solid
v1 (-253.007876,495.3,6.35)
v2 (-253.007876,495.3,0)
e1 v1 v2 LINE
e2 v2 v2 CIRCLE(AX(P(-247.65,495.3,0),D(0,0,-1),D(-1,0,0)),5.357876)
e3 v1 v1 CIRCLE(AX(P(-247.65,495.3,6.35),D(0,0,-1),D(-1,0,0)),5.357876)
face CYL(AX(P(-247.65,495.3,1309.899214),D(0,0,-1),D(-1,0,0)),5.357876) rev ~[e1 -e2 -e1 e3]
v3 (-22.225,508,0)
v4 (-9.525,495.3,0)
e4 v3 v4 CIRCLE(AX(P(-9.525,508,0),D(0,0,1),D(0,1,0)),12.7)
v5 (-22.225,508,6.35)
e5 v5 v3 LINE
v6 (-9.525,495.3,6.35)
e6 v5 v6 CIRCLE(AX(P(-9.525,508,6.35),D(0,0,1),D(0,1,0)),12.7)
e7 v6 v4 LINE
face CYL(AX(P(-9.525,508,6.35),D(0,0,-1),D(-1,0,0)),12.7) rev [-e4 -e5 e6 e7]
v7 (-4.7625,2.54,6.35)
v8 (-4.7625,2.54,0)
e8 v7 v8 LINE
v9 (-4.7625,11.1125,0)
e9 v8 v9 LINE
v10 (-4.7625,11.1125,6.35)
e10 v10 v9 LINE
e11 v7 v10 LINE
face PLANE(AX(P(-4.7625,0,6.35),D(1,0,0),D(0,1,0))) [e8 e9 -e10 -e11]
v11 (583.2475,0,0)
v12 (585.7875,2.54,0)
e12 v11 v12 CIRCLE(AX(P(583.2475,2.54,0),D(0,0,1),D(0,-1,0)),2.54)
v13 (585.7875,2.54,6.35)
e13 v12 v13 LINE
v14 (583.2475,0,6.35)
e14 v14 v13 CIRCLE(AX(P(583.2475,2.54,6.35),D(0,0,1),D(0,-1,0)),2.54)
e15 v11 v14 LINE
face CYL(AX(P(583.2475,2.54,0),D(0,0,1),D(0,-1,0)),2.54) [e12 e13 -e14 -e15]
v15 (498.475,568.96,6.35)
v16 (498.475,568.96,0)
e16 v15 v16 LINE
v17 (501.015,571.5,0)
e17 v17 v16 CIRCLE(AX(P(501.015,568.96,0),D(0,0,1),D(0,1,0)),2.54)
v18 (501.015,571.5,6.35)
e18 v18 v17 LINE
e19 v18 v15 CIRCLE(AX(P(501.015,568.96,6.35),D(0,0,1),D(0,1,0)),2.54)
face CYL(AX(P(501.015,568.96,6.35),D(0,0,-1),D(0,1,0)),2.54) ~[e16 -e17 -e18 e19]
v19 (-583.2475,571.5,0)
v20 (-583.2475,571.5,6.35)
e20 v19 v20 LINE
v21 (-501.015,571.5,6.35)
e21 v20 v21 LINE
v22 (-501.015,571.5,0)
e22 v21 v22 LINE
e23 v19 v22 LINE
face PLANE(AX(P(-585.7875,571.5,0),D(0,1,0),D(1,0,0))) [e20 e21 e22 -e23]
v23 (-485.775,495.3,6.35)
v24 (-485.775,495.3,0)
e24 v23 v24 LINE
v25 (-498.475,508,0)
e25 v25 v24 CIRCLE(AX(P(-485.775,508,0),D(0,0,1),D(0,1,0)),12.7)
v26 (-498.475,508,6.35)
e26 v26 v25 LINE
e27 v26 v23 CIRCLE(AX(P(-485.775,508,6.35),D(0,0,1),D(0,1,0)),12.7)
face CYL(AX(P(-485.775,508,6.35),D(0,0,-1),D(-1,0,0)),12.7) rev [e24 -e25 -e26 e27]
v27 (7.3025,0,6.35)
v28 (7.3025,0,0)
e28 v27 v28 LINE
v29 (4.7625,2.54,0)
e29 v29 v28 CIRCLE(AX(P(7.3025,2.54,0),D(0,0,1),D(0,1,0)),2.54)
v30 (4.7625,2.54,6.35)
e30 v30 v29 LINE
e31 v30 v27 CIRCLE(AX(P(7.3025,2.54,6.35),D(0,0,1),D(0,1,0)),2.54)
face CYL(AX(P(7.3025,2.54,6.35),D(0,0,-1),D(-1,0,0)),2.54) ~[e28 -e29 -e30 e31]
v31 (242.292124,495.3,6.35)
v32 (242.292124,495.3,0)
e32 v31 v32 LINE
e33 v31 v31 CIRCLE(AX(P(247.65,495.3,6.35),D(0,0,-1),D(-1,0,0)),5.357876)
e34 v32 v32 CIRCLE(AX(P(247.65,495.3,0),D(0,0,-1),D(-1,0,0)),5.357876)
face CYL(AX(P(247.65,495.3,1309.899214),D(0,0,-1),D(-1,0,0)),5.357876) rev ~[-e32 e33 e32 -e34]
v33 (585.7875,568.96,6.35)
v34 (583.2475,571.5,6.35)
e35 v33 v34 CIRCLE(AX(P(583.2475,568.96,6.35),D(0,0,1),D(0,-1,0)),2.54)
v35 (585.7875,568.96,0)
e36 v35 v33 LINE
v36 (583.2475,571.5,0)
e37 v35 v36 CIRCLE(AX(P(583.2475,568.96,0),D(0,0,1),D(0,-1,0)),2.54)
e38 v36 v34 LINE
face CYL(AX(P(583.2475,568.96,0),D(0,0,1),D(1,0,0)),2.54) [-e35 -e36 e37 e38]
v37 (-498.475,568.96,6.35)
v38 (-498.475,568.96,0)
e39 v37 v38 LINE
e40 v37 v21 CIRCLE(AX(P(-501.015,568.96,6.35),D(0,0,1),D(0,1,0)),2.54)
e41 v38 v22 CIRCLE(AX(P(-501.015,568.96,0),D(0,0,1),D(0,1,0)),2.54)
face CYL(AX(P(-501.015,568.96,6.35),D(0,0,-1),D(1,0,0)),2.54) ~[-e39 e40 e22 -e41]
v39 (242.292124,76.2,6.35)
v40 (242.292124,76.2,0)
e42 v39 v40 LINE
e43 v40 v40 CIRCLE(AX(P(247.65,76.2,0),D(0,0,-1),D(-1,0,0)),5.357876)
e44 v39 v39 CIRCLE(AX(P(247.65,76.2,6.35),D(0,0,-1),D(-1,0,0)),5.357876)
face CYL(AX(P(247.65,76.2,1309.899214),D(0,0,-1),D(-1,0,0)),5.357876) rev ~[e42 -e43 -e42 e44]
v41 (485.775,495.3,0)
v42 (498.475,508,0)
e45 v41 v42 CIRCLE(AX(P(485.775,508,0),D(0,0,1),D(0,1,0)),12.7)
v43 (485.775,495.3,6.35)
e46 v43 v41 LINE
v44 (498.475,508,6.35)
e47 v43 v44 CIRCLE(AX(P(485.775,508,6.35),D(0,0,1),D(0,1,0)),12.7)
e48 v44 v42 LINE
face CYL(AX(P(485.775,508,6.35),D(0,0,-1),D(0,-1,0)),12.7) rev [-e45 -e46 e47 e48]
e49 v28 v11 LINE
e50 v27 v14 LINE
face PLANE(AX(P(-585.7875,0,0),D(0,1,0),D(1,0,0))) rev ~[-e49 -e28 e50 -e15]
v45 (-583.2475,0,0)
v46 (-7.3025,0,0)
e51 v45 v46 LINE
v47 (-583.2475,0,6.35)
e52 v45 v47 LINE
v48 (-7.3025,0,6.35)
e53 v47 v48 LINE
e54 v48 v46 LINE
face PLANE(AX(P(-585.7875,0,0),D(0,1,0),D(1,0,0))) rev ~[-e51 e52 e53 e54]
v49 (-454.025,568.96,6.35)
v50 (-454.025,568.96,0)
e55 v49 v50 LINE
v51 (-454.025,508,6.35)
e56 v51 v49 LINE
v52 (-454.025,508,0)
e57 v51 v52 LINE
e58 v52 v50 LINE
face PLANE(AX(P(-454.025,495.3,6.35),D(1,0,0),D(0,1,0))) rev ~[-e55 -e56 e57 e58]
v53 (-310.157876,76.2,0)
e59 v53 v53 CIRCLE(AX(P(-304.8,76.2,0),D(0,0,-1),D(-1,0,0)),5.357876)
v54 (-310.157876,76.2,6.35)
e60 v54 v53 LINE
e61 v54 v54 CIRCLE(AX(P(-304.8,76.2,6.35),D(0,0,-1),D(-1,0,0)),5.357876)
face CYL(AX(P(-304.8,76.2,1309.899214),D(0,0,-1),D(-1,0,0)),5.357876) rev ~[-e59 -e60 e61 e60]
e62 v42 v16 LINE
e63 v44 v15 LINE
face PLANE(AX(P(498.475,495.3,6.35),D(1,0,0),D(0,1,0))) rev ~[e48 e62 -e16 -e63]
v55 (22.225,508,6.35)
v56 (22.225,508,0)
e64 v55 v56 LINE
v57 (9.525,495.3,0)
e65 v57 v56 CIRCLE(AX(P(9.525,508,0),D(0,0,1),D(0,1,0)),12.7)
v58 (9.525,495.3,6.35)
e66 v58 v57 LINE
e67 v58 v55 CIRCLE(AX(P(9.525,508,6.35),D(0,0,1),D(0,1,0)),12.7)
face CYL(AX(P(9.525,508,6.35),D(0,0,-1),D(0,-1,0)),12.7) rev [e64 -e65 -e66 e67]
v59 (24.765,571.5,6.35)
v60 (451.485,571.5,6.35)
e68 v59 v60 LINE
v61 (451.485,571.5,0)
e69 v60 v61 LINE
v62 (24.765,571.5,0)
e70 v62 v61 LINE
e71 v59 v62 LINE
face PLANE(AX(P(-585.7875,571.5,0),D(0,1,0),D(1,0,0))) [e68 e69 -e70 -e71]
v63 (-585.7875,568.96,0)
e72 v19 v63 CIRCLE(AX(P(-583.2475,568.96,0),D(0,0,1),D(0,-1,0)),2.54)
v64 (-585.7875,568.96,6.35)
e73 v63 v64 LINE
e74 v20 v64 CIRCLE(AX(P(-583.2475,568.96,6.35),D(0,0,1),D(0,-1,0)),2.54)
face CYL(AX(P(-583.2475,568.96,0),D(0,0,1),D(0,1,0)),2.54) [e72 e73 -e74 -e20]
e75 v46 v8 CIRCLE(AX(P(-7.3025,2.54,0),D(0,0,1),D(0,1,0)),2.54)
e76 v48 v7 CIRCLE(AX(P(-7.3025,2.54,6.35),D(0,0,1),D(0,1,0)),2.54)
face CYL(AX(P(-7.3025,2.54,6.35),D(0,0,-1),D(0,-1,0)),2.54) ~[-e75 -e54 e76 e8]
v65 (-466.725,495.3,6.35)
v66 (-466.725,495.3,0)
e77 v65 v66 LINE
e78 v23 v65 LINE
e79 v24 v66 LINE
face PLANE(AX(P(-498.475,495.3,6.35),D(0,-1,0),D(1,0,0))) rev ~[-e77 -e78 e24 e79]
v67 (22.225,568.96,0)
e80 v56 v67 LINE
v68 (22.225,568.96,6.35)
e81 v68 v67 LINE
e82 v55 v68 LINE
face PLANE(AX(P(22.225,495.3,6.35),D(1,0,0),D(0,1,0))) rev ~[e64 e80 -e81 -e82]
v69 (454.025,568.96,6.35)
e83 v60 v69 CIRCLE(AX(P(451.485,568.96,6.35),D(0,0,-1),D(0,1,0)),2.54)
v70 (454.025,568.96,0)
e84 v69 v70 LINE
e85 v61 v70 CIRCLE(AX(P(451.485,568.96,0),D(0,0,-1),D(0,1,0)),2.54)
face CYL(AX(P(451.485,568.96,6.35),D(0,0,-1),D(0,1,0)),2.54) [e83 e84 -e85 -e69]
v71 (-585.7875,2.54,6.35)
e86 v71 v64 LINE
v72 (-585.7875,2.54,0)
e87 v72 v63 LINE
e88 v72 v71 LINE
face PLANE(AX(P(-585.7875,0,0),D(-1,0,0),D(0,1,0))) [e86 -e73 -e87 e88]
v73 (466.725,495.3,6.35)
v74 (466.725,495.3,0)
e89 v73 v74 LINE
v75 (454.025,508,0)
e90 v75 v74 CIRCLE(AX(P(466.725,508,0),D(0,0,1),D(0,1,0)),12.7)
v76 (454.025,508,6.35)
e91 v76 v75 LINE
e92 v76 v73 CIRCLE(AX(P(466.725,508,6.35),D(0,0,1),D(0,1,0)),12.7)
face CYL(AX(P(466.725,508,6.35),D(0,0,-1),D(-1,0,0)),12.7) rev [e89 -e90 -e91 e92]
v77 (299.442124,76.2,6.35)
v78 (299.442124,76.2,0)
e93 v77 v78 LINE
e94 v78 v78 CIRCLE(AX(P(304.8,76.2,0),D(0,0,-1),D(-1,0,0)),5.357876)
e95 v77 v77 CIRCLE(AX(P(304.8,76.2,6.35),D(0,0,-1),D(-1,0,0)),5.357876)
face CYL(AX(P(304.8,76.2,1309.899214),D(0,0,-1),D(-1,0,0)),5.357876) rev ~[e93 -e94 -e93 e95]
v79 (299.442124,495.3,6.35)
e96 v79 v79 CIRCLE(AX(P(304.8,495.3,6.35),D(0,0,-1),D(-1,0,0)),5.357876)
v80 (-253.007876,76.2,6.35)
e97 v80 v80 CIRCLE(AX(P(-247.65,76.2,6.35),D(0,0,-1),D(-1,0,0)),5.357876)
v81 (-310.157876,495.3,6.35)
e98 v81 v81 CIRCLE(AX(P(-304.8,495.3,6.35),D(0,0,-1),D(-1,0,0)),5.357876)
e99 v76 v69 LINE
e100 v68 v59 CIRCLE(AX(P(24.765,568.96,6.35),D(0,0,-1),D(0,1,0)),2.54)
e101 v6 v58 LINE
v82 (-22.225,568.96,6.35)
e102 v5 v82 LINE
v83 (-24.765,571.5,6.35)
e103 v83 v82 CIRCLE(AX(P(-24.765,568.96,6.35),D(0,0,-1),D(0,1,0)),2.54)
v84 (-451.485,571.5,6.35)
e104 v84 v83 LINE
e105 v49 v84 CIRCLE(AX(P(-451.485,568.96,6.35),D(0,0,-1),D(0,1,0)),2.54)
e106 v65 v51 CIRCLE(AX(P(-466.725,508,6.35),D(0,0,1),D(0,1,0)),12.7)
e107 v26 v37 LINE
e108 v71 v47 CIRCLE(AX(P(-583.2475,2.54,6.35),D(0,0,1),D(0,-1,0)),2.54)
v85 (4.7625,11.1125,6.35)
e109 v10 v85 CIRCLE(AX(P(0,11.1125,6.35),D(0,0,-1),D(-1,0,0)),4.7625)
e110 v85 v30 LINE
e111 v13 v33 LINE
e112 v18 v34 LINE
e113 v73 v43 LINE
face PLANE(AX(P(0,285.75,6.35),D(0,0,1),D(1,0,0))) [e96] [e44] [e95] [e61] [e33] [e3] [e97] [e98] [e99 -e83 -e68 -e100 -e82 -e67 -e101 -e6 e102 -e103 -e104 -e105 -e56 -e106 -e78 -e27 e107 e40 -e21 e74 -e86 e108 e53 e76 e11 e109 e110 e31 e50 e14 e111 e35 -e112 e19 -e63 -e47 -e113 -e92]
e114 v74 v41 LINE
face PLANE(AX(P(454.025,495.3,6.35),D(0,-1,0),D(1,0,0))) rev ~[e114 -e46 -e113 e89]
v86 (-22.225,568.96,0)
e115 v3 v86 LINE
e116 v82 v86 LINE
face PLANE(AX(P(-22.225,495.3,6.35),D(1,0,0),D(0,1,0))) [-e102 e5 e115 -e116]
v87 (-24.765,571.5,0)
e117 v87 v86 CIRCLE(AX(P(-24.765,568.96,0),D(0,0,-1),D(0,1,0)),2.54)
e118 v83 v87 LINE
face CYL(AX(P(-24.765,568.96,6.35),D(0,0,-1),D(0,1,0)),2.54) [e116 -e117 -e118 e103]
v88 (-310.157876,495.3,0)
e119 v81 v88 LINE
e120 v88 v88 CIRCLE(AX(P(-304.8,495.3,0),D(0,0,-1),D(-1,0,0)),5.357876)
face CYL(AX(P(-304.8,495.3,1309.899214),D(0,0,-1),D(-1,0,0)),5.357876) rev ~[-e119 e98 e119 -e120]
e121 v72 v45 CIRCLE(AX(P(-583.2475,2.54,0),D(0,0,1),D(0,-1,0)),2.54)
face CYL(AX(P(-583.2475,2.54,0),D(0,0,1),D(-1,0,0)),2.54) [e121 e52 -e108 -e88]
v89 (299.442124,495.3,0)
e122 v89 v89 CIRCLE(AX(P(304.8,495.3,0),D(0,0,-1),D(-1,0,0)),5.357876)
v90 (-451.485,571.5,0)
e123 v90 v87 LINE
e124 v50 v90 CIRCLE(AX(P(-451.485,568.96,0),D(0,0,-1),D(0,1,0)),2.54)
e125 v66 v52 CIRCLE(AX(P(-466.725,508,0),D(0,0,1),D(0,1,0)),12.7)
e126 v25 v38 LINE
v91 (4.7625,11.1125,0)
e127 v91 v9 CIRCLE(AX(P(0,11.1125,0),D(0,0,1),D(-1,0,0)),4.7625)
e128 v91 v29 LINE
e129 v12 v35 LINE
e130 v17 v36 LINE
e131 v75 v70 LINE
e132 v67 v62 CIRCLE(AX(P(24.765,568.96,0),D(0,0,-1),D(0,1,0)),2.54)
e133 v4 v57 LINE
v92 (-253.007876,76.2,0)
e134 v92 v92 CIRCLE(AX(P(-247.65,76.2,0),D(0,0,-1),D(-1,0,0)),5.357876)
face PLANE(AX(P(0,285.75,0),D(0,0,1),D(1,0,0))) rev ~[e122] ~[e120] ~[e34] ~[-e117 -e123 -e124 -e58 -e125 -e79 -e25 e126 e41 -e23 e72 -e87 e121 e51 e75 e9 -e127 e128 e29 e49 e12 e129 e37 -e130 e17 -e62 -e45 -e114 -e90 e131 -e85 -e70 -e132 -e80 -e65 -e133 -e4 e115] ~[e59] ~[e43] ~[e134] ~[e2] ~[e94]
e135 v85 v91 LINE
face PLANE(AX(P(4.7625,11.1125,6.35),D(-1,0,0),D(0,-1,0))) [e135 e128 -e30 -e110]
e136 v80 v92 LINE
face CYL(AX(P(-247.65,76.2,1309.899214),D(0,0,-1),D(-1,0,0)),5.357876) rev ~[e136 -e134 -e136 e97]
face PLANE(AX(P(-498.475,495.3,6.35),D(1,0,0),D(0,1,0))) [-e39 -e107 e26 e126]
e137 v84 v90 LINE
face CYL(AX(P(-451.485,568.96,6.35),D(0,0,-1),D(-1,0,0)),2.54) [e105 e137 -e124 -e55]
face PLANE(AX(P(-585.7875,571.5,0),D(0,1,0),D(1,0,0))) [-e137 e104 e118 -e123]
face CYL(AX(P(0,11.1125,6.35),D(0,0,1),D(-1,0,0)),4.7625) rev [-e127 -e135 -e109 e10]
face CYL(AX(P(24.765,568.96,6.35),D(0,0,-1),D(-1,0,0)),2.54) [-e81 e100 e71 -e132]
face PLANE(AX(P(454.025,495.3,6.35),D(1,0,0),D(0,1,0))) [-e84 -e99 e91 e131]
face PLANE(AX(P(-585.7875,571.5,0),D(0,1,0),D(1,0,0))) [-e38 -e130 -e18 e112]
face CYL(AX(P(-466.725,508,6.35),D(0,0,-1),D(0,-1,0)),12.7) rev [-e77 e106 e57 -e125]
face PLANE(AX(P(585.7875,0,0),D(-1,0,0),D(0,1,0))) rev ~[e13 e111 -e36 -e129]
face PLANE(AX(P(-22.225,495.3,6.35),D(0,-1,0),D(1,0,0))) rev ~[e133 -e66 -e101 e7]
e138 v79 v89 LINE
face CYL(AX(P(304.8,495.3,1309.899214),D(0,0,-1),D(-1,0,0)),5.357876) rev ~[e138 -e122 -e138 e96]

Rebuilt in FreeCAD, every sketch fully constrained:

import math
import FreeCAD as App
import Part
import Sketcher

V = App.Vector
Q = App.Units.Quantity


def edges_at(feature, points):
    """Names of the edges that pass closest to the given points."""
    edges = feature.Shape.Edges
    near = lambda p: min(range(len(edges)), key=lambda i: edges[i].distToShape(Part.Vertex(*p))[0])
    return sorted({f"Edge{near(p) + 1}" for p in points})


def add_polygon(sketch, points):
    """Adds a closed chain of lines whose ends are joined by coincident constraints."""
    first, n = sketch.GeometryCount, len(points)
    for a, b in zip(points, points[1:] + points[:1]):
        sketch.addGeometry(Part.LineSegment(App.Vector(*a, 0), App.Vector(*b, 0)), False)
    for i in range(n):
        sketch.addConstraint(Sketcher.Constraint("Coincident", first + i, 2, first + (i + 1) % n, 1))

doc = App.newDocument("Part")
params = doc.addObject("Spreadsheet::Sheet", "Params")
for row, (alias, value) in enumerate([
    ("sketch1_height", "22.5 in"),
    ("sketch1_width", "46.125 in"),
    ("pad1_length", "0.25 in"),
    ("hole_diameter", "10.715752 mm"),
    ("sketch3_height", "3 in"),
    ("sketch3_width", "1.75 in"),
    ("sketch4_radius", "0.1875 in"),
    ("sketch4_height", "0.4375 in"),
    ("fillet_radius", "0.5 in"),
    ("fillet2_radius", "0.1 in"),
], start=1):
    params.set(f"A{row}", alias)
    params.set(f"B{row}", "=" + value)
    params.setAlias(f"B{row}", alias)

body = doc.addObject("PartDesign::Body", "Body")

sketch1 = body.newObject("Sketcher::SketchObject", "Sketch")
sketch1.AttachmentSupport = (doc.getObject("XY_Plane"), [""])
sketch1.MapMode = "FlatFace"
add_polygon(sketch1, [(-585.7875, 571.5), (-585.7875, 0), (585.7875, 0), (585.7875, 571.5)])
sketch1.addConstraint([
    Sketcher.Constraint("Vertical", 0),
    Sketcher.Constraint("Horizontal", 1),
    Sketcher.Constraint("Vertical", 2),
    Sketcher.Constraint("Horizontal", 3),
    Sketcher.Constraint("Symmetric", 0, 2, 1, 2, -1, 1),
    Sketcher.Constraint("DistanceY", 0, 2, 0, 1, Q("22.5 in")),
    Sketcher.Constraint("DistanceX", 1, 1, 1, 2, Q("46.125 in")),
])
sketch1.setExpression("Constraints[9]", "Params.sketch1_height")
sketch1.setExpression("Constraints[10]", "Params.sketch1_width")
pad1 = body.newObject("PartDesign::Pad", "Pad")
pad1.Profile = sketch1
pad1.setExpression("Length", "Params.pad1_length")

sketch2 = body.newObject("Sketcher::SketchObject", "Sketch001")
sketch2.AttachmentSupport = (doc.getObject("XY_Plane"), [""])
sketch2.MapMode = "FlatFace"
sketch2.AttachmentOffset = App.Placement(V(0, 0, 0.25 * 25.4), App.Rotation())
sketch2.addGeometry([
    Part.Circle(V(304.8, 495.3, 0), V(0, 0, 1), 5.357876),
    Part.Circle(V(-247.65, 495.3, 0), V(0, 0, 1), 5.357876),
    Part.Circle(V(-304.8, 495.3, 0), V(0, 0, 1), 5.357876),
    Part.Circle(V(-247.65, 76.2, 0), V(0, 0, 1), 5.357876),
    Part.Circle(V(-304.8, 76.2, 0), V(0, 0, 1), 5.357876),
    Part.Circle(V(247.65, 76.2, 0), V(0, 0, 1), 5.357876),
    Part.Circle(V(304.8, 76.2, 0), V(0, 0, 1), 5.357876),
    Part.Circle(V(247.65, 495.3, 0), V(0, 0, 1), 5.357876),
], False)
sketch2.addConstraint([
    Sketcher.Constraint("Equal", 0, 1),
    Sketcher.Constraint("Equal", 1, 2),
    Sketcher.Constraint("Equal", 2, 3),
    Sketcher.Constraint("Equal", 3, 4),
    Sketcher.Constraint("Equal", 4, 5),
    Sketcher.Constraint("Equal", 5, 6),
    Sketcher.Constraint("Equal", 6, 7),
    Sketcher.Constraint("Symmetric", 0, 3, 2, 3, -2),
    Sketcher.Constraint("Symmetric", 3, 3, 5, 3, -2),
    Sketcher.Constraint("Symmetric", 4, 3, 6, 3, -2),
    Sketcher.Constraint("Symmetric", 1, 3, 7, 3, -2),
    Sketcher.Constraint("Horizontal", 0, 3, 1, 3),
    Sketcher.Constraint("Horizontal", 3, 3, 4, 3),
    Sketcher.Constraint("Vertical", 1, 3, 3, 3),
    Sketcher.Constraint("Vertical", 2, 3, 4, 3),
    Sketcher.Constraint("DistanceX", -1, 1, 0, 3, Q("12 in")),
    Sketcher.Constraint("DistanceY", -1, 1, 3, 3, Q("3 in")),
    Sketcher.Constraint("DistanceY", -1, 1, 0, 3, Q("19.5 in")),
    Sketcher.Constraint("DistanceX", 3, 3, 5, 3, Q("19.5 in")),
    Sketcher.Constraint("Diameter", 0, Q("10.715752 mm")),
])
doc.recompute()
hole = body.newObject("PartDesign::Hole", "Hole")
hole.Profile = sketch2
hole.ThreadType = "None"
hole.setExpression("Diameter", "Params.hole_diameter")
hole.DepthType = "ThroughAll"

sketch3 = body.newObject("Sketcher::SketchObject", "Sketch002")
sketch3.AttachmentSupport = (doc.getObject("XY_Plane"), [""])
sketch3.MapMode = "FlatFace"
sketch3.AttachmentOffset = App.Placement(V(0, 0, 0.25 * 25.4), App.Rotation())
add_polygon(sketch3, [(-498.475, 571.5), (-498.475, 495.3), (-454.025, 495.3), (-454.025, 571.5)])
add_polygon(sketch3, [(-22.225, 571.5), (-22.225, 495.3), (22.225, 495.3), (22.225, 571.5)])
add_polygon(sketch3, [(454.025, 571.5), (454.025, 495.3), (498.475, 495.3), (498.475, 571.5)])
sketch3.addConstraint([
    Sketcher.Constraint("Vertical", 0),
    Sketcher.Constraint("Horizontal", 1),
    Sketcher.Constraint("Vertical", 2),
    Sketcher.Constraint("Horizontal", 3),
    Sketcher.Constraint("Vertical", 4),
    Sketcher.Constraint("Horizontal", 5),
    Sketcher.Constraint("Vertical", 6),
    Sketcher.Constraint("Horizontal", 7),
    Sketcher.Constraint("Vertical", 8),
    Sketcher.Constraint("Horizontal", 9),
    Sketcher.Constraint("Vertical", 10),
    Sketcher.Constraint("Horizontal", 11),
    Sketcher.Constraint("Symmetric", 1, 2, 8, 2, -2),
    Sketcher.Constraint("Symmetric", 3, 2, 10, 2, -2),
    Sketcher.Constraint("Horizontal", 1, 2, 4, 2),
    Sketcher.Constraint("Horizontal", 3, 2, 6, 2),
    Sketcher.Constraint("Equal", 3, 5),
    Sketcher.Constraint("DistanceY", 0, 2, 0, 1, Q("3 in")),
    Sketcher.Constraint("DistanceX", 1, 2, 4, 2, Q("17 in")),
    Sketcher.Constraint("DistanceX", 5, 2, 8, 2, Q("17 in")),
    Sketcher.Constraint("DistanceX", 1, 1, 1, 2, Q("1.75 in")),
    Sketcher.Constraint("DistanceY", -1, 1, 0, 2, Q("19.5 in")),
])
sketch3.setExpression("Constraints[29]", "Params.sketch3_height")
sketch3.setExpression("Constraints[32]", "Params.sketch3_width")
pocket1 = body.newObject("PartDesign::Pocket", "Pocket")
pocket1.Profile = sketch3
pocket1.Type = "ThroughAll"

sketch4 = body.newObject("Sketcher::SketchObject", "Sketch003")
sketch4.AttachmentSupport = (doc.getObject("XY_Plane"), [""])
sketch4.MapMode = "FlatFace"
sketch4.AttachmentOffset = App.Placement(V(0, 0, 0.25 * 25.4), App.Rotation())
sketch4.addGeometry([
    Part.LineSegment(V(-4.7625, 0, 0), V(4.7625, 0, 0)),
    Part.LineSegment(V(4.7625, 0, 0), V(4.7625, 11.1125, 0)),
    Part.ArcOfCircle(Part.Circle(V(0, 11.1125, 0), V(0, 0, 1), 4.7625), math.radians(0), math.radians(180)),
    Part.LineSegment(V(-4.7625, 11.1125, 0), V(-4.7625, 0, 0)),
], False)
sketch4.addConstraint([
    Sketcher.Constraint("Coincident", 0, 2, 1, 1),
    Sketcher.Constraint("Tangent", 1, 2, 2, 1),
    Sketcher.Constraint("Tangent", 2, 2, 3, 1),
    Sketcher.Constraint("Coincident", 3, 2, 0, 1),
    Sketcher.Constraint("Horizontal", 0),
    Sketcher.Constraint("Vertical", 1),
    Sketcher.Constraint("Vertical", 3),
    Sketcher.Constraint("Symmetric", 0, 2, 3, 2, -1, 1),
    Sketcher.Constraint("Radius", 2, Q("0.1875 in")),
    Sketcher.Constraint("DistanceY", 1, 1, 1, 2, Q("0.4375 in")),
])
sketch4.setExpression("Constraints[8]", "Params.sketch4_radius")
sketch4.setExpression("Constraints[9]", "Params.sketch4_height")
pocket2 = body.newObject("PartDesign::Pocket", "Pocket001")
pocket2.Profile = sketch4
pocket2.Type = "ThroughAll"
doc.recompute()

fillet = body.newObject("PartDesign::Fillet", "Fillet")
fillet.Base = (pocket2, edges_at(pocket2, [
    (-454.025, 495.3, 3.175),
    (-498.475, 495.3, 3.175),
    (-22.225, 495.3, 3.175),
    (22.225, 495.3, 3.175),
    (454.025, 495.3, 3.175),
    (498.475, 495.3, 3.175),
]))
fillet.setExpression("Radius", "Params.fillet_radius")
doc.recompute()

fillet2 = body.newObject("PartDesign::Fillet", "Fillet001")
fillet2.Base = (fillet, edges_at(fillet, [
    (4.763, 0, 3.175),
    (-4.763, 0, 3.175),
    (-498.475, 571.5, 3.175),
    (-454.025, 571.5, 3.175),
    (-585.788, 571.5, 3.175),
    (585.788, 571.5, 3.175),
    (585.788, 0, 3.175),
    (-22.225, 571.5, 3.175),
    (-585.788, 0, 3.175),
    (22.225, 571.5, 3.175),
    (454.025, 571.5, 3.175),
    (498.475, 571.5, 3.175),
]))
fillet2.setExpression("Radius", "Params.fillet2_radius")

doc.recompute()
